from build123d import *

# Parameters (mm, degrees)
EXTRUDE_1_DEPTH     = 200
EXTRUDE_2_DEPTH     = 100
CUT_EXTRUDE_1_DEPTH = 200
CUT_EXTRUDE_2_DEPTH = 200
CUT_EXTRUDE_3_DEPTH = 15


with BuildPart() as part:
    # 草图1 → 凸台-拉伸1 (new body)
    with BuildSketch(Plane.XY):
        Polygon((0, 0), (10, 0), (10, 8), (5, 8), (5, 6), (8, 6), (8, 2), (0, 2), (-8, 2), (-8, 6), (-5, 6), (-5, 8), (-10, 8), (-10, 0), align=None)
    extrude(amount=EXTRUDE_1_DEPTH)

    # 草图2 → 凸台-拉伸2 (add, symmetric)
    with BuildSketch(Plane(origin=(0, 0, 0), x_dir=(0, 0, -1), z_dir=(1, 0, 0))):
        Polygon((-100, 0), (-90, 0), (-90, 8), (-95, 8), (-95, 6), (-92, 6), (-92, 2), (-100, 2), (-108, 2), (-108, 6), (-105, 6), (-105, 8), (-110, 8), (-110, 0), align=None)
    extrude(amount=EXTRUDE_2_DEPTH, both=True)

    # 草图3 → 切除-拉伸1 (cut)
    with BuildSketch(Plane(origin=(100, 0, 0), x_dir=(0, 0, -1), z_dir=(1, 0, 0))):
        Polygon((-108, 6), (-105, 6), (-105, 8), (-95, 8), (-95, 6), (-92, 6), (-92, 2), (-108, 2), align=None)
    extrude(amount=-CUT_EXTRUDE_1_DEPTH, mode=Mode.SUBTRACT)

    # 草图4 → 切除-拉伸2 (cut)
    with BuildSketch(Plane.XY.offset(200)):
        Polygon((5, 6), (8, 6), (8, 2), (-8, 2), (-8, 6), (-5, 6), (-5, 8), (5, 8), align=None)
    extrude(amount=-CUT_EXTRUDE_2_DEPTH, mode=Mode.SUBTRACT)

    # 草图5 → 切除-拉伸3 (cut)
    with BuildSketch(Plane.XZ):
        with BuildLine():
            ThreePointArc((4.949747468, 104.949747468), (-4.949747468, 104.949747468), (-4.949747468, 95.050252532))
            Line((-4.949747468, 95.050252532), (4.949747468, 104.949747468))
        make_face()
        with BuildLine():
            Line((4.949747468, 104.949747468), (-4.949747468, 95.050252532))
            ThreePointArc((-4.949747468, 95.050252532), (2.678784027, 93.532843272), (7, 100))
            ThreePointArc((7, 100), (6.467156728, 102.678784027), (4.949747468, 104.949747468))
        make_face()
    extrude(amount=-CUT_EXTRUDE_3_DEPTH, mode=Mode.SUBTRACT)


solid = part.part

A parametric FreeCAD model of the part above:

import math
import FreeCAD as App
import Part
import Sketcher

V = App.Vector
Q = App.Units.Quantity


def add_polygon(sketch, points):
    """Adds a closed chain of lines whose ends are joined by coincident constraints."""
    first, n = sketch.GeometryCount, len(points)
    for a, b in zip(points, points[1:] + points[:1]):
        sketch.addGeometry(Part.LineSegment(App.Vector(*a, 0), App.Vector(*b, 0)), False)
    for i in range(n):
        sketch.addConstraint(Sketcher.Constraint("Coincident", first + i, 2, first + (i + 1) % n, 1))

doc = App.newDocument("Part")
params = doc.addObject("Spreadsheet::Sheet", "Params")
for row, (alias, value) in enumerate([
    ("sketch1_width", "5 mm"),
    ("sketch1_width2", "3 mm"),
    ("sketch1_width3", "16 mm"),
    ("sketch1_height", "8 mm"),
    ("sketch1_height2", "2 mm"),
    ("pad1_length", "200 mm"),
    ("sketch2_width", "8 mm"),
    ("sketch2_width2", "2 mm"),
    ("sketch2_width3", "4 mm"),
    ("sketch2_height", "5 mm"),
    ("sketch2_height2", "3 mm"),
    ("pad2_length", "200 mm"),
    ("sketch3_width", "4 mm"),
    ("sketch3_width2", "2 mm"),
    ("sketch3_height", "3 mm"),
    ("sketch3_height2", "16 mm"),
    ("pocket1_length", "200 mm"),
    ("sketch4_width", "3 mm"),
    ("sketch4_width2", "10 mm"),
    ("sketch4_height", "2 mm"),
    ("sketch4_height2", "4 mm"),
    ("pocket2_length", "200 mm"),
    ("sketch5_radius", "7 mm"),
    ("pocket3_length", "15 mm"),
], start=1):
    params.set(f"A{row}", alias)
    params.set(f"B{row}", "=" + value)
    params.setAlias(f"B{row}", alias)

body = doc.addObject("PartDesign::Body", "Body")

sketch1 = body.newObject("Sketcher::SketchObject", "Sketch")
sketch1.AttachmentSupport = (doc.getObject("XY_Plane"), [""])
sketch1.MapMode = "FlatFace"
add_polygon(sketch1, [(10, 0), (10, 8), (5, 8), (5, 6), (8, 6), (8, 2), (-8, 2), (-8, 6), (-5, 6), (-5, 8), (-10, 8), (-10, 0)])
sketch1.addConstraint([
    Sketcher.Constraint("Vertical", 0),
    Sketcher.Constraint("Horizontal", 1),
    Sketcher.Constraint("Vertical", 2),
    Sketcher.Constraint("Horizontal", 3),
    Sketcher.Constraint("Vertical", 4),
    Sketcher.Constraint("Horizontal", 5),
    Sketcher.Constraint("Vertical", 6),
    Sketcher.Constraint("Horizontal", 7),
    Sketcher.Constraint("Vertical", 8),
    Sketcher.Constraint("Horizontal", 9),
    Sketcher.Constraint("Vertical", 10),
    Sketcher.Constraint("Horizontal", 11),
    Sketcher.Constraint("Symmetric", 10, 2, 11, 2, -1, 1),
    Sketcher.Constraint("Symmetric", 3, 2, 6, 2, -2),
    Sketcher.Constraint("Symmetric", 1, 2, 8, 2, -2),
    Sketcher.Constraint("DistanceX", 1, 2, 1, 1, Q("5 mm")),
    Sketcher.Constraint("DistanceX", 3, 1, 3, 2, Q("3 mm")),
    Sketcher.Constraint("DistanceX", 5, 2, 5, 1, Q("16 mm")),
    Sketcher.Constraint("DistanceY", 0, 1, 0, 2, Q("8 mm")),
    Sketcher.Constraint("DistanceY", 2, 2, 2, 1, Q("2 mm")),
    Sketcher.Constraint("DistanceY", 4, 2, 4, 1, Q("4 mm")),
])
sketch1.setExpression("Constraints[27]", "Params.sketch1_width")
sketch1.setExpression("Constraints[28]", "Params.sketch1_width2")
sketch1.setExpression("Constraints[29]", "Params.sketch1_width3")
sketch1.setExpression("Constraints[30]", "Params.sketch1_height")
sketch1.setExpression("Constraints[31]", "Params.sketch1_height2")
pad1 = body.newObject("PartDesign::Pad", "Pad")
pad1.Profile = sketch1
pad1.setExpression("Length", "Params.pad1_length")

sketch2 = body.newObject("Sketcher::SketchObject", "Sketch001")
sketch2.AttachmentSupport = (doc.getObject("YZ_Plane"), [""])
sketch2.MapMode = "FlatFace"
add_polygon(sketch2, [(0, 90), (8, 90), (8, 95), (6, 95), (6, 92), (2, 92), (2, 108), (6, 108), (6, 105), (8, 105), (8, 110), (0, 110)])
sketch2.addConstraint([
    Sketcher.Constraint("Horizontal", 0),
    Sketcher.Constraint("Vertical", 1),
    Sketcher.Constraint("Horizontal", 2),
    Sketcher.Constraint("Vertical", 3),
    Sketcher.Constraint("Horizontal", 4),
    Sketcher.Constraint("Vertical", 5),
    Sketcher.Constraint("Horizontal", 6),
    Sketcher.Constraint("Vertical", 7),
    Sketcher.Constraint("Horizontal", 8),
    Sketcher.Constraint("Vertical", 9),
    Sketcher.Constraint("Horizontal", 10),
    Sketcher.Constraint("Vertical", 11),
    Sketcher.Constraint("PointOnObject", 10, 2, -2),
    Sketcher.Constraint("Vertical", 3, 2, 6, 2),
    Sketcher.Constraint("Vertical", 1, 2, 8, 2),
    Sketcher.Constraint("Equal", 3, 7),
    Sketcher.Constraint("Equal", 1, 9),
    Sketcher.Constraint("DistanceX", 0, 1, 0, 2, Q("8 mm")),
    Sketcher.Constraint("DistanceX", 2, 2, 2, 1, Q("2 mm")),
    Sketcher.Constraint("DistanceX", 4, 2, 4, 1, Q("4 mm")),
    Sketcher.Constraint("DistanceY", 1, 1, 1, 2, Q("5 mm")),
    Sketcher.Constraint("DistanceY", 3, 2, 3, 1, Q("3 mm")),
    Sketcher.Constraint("DistanceY", 5, 1, 5, 2, Q("16 mm")),
    Sketcher.Constraint("DistanceY", -1, 1, 0, 2, Q("90 mm")),
])
sketch2.setExpression("Constraints[29]", "Params.sketch2_width")
sketch2.setExpression("Constraints[30]", "Params.sketch2_width2")
sketch2.setExpression("Constraints[31]", "Params.sketch2_width3")
sketch2.setExpression("Constraints[32]", "Params.sketch2_height")
sketch2.setExpression("Constraints[33]", "Params.sketch2_height2")
pad2 = body.newObject("PartDesign::Pad", "Pad001")
pad2.Profile = sketch2
pad2.setExpression("Length", "Params.pad2_length")
pad2.Midplane = True

sketch3 = body.newObject("Sketcher::SketchObject", "Sketch002")
sketch3.AttachmentSupport = (doc.getObject("YZ_Plane"), [""])
sketch3.MapMode = "FlatFace"
sketch3.AttachmentOffset = App.Placement(V(0, 0, 100), App.Rotation())
add_polygon(sketch3, [(6, 105), (6, 108), (2, 108), (2, 92), (6, 92), (6, 95), (8, 95), (8, 105)])
sketch3.addConstraint([
    Sketcher.Constraint("Vertical", 0),
    Sketcher.Constraint("Horizontal", 1),
    Sketcher.Constraint("Vertical", 2),
    Sketcher.Constraint("Horizontal", 3),
    Sketcher.Constraint("Vertical", 4),
    Sketcher.Constraint("Horizontal", 5),
    Sketcher.Constraint("Vertical", 6),
    Sketcher.Constraint("Horizontal", 7),
    Sketcher.Constraint("Vertical", 0, 2, 3, 2),
    Sketcher.Constraint("Equal", 0, 4),
    Sketcher.Constraint("DistanceX", 1, 2, 1, 1, Q("4 mm")),
    Sketcher.Constraint("DistanceX", 5, 1, 5, 2, Q("2 mm")),
    Sketcher.Constraint("DistanceY", 0, 1, 0, 2, Q("3 mm")),
    Sketcher.Constraint("DistanceY", 2, 2, 2, 1, Q("16 mm")),
    Sketcher.Constraint("DistanceX", -1, 1, 0, 2, Q("6 mm")),
    Sketcher.Constraint("DistanceY", -1, 1, 0, 2, Q("108 mm")),
])
sketch3.setExpression("Constraints[18]", "Params.sketch3_width")
sketch3.setExpression("Constraints[19]", "Params.sketch3_width2")
sketch3.setExpression("Constraints[20]", "Params.sketch3_height")
sketch3.setExpression("Constraints[21]", "Params.sketch3_height2")
pocket1 = body.newObject("PartDesign::Pocket", "Pocket")
pocket1.Profile = sketch3
pocket1.setExpression("Length", "Params.pocket1_length")

sketch4 = body.newObject("Sketcher::SketchObject", "Sketch003")
sketch4.AttachmentSupport = (doc.getObject("XY_Plane"), [""])
sketch4.MapMode = "FlatFace"
sketch4.AttachmentOffset = App.Placement(V(0, 0, 200), App.Rotation())
add_polygon(sketch4, [(8, 6), (5, 6), (5, 8), (-5, 8), (-5, 6), (-8, 6), (-8, 2), (8, 2)])
sketch4.addConstraint([
    Sketcher.Constraint("Horizontal", 0),
    Sketcher.Constraint("Vertical", 1),
    Sketcher.Constraint("Horizontal", 2),
    Sketcher.Constraint("Vertical", 3),
    Sketcher.Constraint("Horizontal", 4),
    Sketcher.Constraint("Vertical", 5),
    Sketcher.Constraint("Horizontal", 6),
    Sketcher.Constraint("Vertical", 7),
    Sketcher.Constraint("Symmetric", 0, 2, 3, 2, -2),
    Sketcher.Constraint("Equal", 0, 4),
    Sketcher.Constraint("DistanceX", 0, 2, 0, 1, Q("3 mm")),
    Sketcher.Constraint("DistanceX", 2, 2, 2, 1, Q("10 mm")),
    Sketcher.Constraint("DistanceY", 1, 1, 1, 2, Q("2 mm")),
    Sketcher.Constraint("DistanceY", 5, 2, 5, 1, Q("4 mm")),
    Sketcher.Constraint("DistanceY", -1, 1, 0, 2, Q("6 mm")),
])
sketch4.setExpression("Constraints[18]", "Params.sketch4_width")
sketch4.setExpression("Constraints[19]", "Params.sketch4_width2")
sketch4.setExpression("Constraints[20]", "Params.sketch4_height")
sketch4.setExpression("Constraints[21]", "Params.sketch4_height2")
pocket2 = body.newObject("PartDesign::Pocket", "Pocket001")
pocket2.Profile = sketch4
pocket2.setExpression("Length", "Params.pocket2_length")

sketch5 = body.newObject("Sketcher::SketchObject", "Sketch004")
sketch5.AttachmentSupport = (doc.getObject("XZ_Plane"), [""])
sketch5.MapMode = "FlatFace"
sketch5.addGeometry([
    Part.ArcOfCircle(Part.Circle(V(0, 100, 0), V(0, 0, 1), 7), math.radians(45), math.radians(225)),
    Part.ArcOfCircle(Part.Circle(V(0, 100, 0), V(0, 0, 1), 7), math.radians(-135), math.radians(0)),
    Part.ArcOfCircle(Part.Circle(V(0, 100, 0), V(0, 0, 1), 7), math.radians(0), math.radians(45)),
], False)
sketch5.addConstraint([
    Sketcher.Constraint("Tangent", 0, 2, 1, 1),
    Sketcher.Constraint("Tangent", 1, 2, 2, 1),
    Sketcher.Constraint("Tangent", 2, 2, 0, 1),
    Sketcher.Constraint("PointOnObject", 0, 3, -2),
    Sketcher.Constraint("Horizontal", 2, 3, 1, 2),
    Sketcher.Constraint("Radius", 0, Q("7 mm")),
    Sketcher.Constraint("DistanceY", -1, 1, 0, 3, Q("100 mm")),
    Sketcher.Constraint("DistanceX", 0, 2, -1, 1, Q("4.949747 mm")),
    Sketcher.Constraint("DistanceX", -1, 1, 2, 2, Q("4.949747 mm")),
])
sketch5.setExpression("Constraints[5]", "Params.sketch5_radius")
pocket3 = body.newObject("PartDesign::Pocket", "Pocket002")
pocket3.Profile = sketch5
pocket3.setExpression("Length", "Params.pocket3_length")

doc.recompute()
